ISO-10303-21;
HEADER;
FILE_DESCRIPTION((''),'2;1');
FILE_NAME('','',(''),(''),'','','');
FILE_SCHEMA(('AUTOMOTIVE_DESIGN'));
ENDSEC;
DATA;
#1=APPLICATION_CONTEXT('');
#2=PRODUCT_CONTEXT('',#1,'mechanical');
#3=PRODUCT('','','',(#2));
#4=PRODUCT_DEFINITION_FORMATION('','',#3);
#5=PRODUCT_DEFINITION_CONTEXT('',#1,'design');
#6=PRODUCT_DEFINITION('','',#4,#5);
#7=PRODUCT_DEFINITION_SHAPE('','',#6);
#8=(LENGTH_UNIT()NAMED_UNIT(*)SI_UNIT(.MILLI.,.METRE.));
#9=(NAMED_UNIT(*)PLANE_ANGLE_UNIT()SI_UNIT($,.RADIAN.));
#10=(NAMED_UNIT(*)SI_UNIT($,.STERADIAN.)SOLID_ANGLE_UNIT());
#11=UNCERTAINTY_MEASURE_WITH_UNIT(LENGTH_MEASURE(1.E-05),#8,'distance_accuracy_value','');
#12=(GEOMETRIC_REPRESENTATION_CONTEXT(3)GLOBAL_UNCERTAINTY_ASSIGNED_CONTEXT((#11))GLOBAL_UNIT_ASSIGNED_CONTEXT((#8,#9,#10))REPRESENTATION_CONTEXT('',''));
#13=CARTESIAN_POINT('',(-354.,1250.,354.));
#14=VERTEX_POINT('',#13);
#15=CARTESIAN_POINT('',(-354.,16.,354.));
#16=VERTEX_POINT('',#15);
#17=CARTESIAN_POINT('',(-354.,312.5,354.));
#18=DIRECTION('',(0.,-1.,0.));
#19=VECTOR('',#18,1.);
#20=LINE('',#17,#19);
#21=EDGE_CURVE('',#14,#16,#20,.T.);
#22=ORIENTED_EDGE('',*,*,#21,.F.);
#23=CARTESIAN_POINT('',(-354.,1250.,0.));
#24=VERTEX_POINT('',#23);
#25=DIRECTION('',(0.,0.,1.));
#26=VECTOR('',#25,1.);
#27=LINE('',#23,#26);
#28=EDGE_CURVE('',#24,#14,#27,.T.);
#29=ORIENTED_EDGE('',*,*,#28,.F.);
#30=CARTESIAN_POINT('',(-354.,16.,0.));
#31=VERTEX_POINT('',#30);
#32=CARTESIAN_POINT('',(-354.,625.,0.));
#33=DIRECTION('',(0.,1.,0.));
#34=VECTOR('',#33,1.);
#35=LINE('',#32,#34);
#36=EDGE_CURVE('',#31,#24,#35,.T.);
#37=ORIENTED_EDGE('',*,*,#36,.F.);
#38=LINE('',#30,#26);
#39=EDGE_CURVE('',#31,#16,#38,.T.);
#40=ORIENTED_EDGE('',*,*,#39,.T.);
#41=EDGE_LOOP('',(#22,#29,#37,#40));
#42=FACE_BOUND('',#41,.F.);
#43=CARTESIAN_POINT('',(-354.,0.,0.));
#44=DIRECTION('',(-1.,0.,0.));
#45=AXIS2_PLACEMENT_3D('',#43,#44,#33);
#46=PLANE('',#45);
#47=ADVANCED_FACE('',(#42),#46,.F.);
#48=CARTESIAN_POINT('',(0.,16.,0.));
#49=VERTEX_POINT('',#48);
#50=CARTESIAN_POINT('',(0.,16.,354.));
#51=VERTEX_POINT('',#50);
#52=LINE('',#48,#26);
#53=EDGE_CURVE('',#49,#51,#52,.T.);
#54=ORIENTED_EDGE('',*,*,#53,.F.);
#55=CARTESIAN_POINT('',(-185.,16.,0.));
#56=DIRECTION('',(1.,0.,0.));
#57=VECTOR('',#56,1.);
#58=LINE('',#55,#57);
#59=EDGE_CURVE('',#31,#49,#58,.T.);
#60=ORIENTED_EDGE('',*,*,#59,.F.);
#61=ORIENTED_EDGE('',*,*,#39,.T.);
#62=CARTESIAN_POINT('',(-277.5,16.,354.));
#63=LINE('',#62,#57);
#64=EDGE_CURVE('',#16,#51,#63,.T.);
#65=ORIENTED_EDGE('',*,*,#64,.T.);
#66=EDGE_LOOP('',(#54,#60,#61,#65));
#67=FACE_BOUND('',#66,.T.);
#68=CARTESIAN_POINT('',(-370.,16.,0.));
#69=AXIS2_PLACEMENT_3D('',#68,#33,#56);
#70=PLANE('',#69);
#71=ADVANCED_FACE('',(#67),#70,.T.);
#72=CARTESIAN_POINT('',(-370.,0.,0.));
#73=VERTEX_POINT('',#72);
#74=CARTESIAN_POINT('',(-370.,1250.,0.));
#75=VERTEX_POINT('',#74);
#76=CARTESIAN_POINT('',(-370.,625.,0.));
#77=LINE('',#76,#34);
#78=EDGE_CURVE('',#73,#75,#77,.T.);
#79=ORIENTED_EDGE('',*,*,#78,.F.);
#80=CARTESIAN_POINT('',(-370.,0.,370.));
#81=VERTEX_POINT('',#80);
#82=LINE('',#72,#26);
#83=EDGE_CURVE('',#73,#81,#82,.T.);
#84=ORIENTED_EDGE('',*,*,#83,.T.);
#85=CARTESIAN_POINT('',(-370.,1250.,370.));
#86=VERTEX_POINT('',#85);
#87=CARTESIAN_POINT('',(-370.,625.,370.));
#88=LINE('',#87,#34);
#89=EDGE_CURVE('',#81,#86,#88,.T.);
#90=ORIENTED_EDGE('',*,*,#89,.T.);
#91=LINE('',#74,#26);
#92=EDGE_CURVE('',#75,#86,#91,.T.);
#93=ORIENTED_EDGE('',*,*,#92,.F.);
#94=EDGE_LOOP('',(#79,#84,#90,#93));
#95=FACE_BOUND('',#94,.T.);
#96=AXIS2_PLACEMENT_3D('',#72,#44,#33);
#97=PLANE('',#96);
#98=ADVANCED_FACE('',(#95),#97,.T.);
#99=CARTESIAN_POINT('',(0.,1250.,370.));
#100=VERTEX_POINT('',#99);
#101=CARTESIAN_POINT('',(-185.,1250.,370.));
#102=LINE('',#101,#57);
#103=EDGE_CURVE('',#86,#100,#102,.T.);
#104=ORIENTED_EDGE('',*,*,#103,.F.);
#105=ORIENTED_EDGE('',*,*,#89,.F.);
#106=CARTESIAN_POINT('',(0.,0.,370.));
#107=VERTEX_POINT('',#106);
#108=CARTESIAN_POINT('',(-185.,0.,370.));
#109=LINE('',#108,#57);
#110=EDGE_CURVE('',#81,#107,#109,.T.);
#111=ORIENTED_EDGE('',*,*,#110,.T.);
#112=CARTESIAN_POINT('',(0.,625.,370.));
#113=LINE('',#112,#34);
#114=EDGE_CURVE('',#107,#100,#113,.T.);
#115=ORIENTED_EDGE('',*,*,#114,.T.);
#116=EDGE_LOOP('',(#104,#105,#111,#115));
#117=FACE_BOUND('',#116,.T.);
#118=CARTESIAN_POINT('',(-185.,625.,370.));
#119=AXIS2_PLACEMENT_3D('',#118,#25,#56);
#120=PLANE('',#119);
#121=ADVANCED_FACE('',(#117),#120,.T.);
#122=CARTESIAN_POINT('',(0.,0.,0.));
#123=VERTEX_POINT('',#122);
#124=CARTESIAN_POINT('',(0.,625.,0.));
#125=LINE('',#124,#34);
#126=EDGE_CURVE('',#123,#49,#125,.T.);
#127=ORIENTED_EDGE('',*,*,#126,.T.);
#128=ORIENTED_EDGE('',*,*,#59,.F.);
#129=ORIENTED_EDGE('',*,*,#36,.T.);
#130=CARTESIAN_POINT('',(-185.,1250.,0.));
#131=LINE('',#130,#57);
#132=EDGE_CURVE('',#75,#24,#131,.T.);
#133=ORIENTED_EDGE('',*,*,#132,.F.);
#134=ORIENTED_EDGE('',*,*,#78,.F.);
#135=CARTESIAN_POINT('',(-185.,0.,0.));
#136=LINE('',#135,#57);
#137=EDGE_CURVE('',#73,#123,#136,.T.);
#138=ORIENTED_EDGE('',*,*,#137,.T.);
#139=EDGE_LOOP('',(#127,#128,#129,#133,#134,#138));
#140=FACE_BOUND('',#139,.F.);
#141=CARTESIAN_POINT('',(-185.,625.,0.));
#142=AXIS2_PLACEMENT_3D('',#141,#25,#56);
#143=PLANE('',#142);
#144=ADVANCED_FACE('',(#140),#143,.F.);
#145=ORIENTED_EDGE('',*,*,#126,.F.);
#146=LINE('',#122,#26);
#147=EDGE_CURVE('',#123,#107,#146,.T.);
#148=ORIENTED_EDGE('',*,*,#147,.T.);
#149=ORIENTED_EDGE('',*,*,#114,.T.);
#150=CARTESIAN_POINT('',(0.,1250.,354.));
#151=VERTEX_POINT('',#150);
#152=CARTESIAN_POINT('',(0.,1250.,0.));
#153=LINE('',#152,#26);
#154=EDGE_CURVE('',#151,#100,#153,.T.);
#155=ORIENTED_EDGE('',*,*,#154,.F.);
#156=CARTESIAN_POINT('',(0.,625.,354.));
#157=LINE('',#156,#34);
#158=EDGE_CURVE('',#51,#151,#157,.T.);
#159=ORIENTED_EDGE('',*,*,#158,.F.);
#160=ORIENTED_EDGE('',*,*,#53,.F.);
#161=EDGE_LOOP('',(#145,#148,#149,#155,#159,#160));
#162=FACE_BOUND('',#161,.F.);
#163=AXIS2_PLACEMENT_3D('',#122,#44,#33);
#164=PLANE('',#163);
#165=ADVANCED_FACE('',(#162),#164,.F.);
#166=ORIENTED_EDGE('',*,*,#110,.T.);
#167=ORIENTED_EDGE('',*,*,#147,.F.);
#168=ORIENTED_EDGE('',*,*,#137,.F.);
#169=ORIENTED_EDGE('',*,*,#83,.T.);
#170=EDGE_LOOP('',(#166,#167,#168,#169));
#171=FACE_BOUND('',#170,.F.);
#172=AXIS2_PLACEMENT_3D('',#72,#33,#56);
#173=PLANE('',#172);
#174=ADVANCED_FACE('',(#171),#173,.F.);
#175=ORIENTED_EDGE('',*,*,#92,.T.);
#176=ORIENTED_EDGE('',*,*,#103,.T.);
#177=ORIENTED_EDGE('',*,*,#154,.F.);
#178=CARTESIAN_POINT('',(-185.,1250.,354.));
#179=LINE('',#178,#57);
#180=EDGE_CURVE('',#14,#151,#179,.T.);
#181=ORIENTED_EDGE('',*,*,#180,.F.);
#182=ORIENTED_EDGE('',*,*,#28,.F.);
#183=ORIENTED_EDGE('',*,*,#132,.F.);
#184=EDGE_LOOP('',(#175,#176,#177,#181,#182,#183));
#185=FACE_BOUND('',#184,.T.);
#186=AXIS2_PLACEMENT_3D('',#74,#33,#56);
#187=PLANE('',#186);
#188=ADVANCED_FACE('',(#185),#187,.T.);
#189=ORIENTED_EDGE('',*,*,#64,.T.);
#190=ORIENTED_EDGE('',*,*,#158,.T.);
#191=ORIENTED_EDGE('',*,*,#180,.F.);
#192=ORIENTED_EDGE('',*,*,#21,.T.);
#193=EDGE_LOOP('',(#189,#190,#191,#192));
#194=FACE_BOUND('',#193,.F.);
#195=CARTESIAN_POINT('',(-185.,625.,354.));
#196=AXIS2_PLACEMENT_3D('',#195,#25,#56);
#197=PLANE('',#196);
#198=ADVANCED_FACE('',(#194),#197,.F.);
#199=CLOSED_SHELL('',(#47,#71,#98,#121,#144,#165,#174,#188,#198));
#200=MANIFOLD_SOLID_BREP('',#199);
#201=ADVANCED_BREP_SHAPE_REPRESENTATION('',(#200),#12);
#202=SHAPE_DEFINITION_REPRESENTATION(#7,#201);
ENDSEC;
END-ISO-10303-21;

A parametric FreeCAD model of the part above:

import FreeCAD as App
import Part
import Sketcher

V = App.Vector
Q = App.Units.Quantity


def faces_at(feature, points):
    """Names of the faces that lie closest to the given points."""
    faces = feature.Shape.Faces
    near = lambda p: min(range(len(faces)), key=lambda i: faces[i].distToShape(Part.Vertex(*p))[0])
    return sorted({f"Face{near(p) + 1}" for p in points})


def add_polygon(sketch, points):
    """Adds a closed chain of lines whose ends are joined by coincident constraints."""
    first, n = sketch.GeometryCount, len(points)
    for a, b in zip(points, points[1:] + points[:1]):
        sketch.addGeometry(Part.LineSegment(App.Vector(*a, 0), App.Vector(*b, 0)), False)
    for i in range(n):
        sketch.addConstraint(Sketcher.Constraint("Coincident", first + i, 2, first + (i + 1) % n, 1))

doc = App.newDocument("Part")
body = doc.addObject("PartDesign::Body", "Body")

# Sketch on XY plane
sketch1 = body.newObject("Sketcher::SketchObject", "Sketch")
sketch1.AttachmentSupport = (doc.getObject("XY_Plane"), [""])
sketch1.MapMode = "FlatFace"
add_polygon(sketch1, [(-370, 1250), (-370, 0), (0, 0), (0, 1250)])  # lines 0-3
sketch1.addConstraint([
    Sketcher.Constraint("Vertical", 0),
    Sketcher.Constraint("Horizontal", 1),
    Sketcher.Constraint("Vertical", 2),
    Sketcher.Constraint("Horizontal", 3),
    Sketcher.Constraint("Coincident", 1, 2, -1, 1),
    Sketcher.Constraint("DistanceX", 1, 1, 1, 2, Q("370 mm")),
    Sketcher.Constraint("DistanceY", 0, 2, 0, 1, Q("1250 mm")),
])
pad1 = body.newObject("PartDesign::Pad", "Pad")
pad1.Profile = sketch1
pad1.Length = 370
doc.recompute()

thickness = body.newObject("PartDesign::Thickness", "Thickness")
thickness.Base = (pad1, faces_at(pad1, [(0, 625, 185), (-185, 625, 0), (-185, 1250, 185)]))
thickness.Value = 16
thickness.Reversed = True
thickness.Join = "Arc"

doc.recompute()
